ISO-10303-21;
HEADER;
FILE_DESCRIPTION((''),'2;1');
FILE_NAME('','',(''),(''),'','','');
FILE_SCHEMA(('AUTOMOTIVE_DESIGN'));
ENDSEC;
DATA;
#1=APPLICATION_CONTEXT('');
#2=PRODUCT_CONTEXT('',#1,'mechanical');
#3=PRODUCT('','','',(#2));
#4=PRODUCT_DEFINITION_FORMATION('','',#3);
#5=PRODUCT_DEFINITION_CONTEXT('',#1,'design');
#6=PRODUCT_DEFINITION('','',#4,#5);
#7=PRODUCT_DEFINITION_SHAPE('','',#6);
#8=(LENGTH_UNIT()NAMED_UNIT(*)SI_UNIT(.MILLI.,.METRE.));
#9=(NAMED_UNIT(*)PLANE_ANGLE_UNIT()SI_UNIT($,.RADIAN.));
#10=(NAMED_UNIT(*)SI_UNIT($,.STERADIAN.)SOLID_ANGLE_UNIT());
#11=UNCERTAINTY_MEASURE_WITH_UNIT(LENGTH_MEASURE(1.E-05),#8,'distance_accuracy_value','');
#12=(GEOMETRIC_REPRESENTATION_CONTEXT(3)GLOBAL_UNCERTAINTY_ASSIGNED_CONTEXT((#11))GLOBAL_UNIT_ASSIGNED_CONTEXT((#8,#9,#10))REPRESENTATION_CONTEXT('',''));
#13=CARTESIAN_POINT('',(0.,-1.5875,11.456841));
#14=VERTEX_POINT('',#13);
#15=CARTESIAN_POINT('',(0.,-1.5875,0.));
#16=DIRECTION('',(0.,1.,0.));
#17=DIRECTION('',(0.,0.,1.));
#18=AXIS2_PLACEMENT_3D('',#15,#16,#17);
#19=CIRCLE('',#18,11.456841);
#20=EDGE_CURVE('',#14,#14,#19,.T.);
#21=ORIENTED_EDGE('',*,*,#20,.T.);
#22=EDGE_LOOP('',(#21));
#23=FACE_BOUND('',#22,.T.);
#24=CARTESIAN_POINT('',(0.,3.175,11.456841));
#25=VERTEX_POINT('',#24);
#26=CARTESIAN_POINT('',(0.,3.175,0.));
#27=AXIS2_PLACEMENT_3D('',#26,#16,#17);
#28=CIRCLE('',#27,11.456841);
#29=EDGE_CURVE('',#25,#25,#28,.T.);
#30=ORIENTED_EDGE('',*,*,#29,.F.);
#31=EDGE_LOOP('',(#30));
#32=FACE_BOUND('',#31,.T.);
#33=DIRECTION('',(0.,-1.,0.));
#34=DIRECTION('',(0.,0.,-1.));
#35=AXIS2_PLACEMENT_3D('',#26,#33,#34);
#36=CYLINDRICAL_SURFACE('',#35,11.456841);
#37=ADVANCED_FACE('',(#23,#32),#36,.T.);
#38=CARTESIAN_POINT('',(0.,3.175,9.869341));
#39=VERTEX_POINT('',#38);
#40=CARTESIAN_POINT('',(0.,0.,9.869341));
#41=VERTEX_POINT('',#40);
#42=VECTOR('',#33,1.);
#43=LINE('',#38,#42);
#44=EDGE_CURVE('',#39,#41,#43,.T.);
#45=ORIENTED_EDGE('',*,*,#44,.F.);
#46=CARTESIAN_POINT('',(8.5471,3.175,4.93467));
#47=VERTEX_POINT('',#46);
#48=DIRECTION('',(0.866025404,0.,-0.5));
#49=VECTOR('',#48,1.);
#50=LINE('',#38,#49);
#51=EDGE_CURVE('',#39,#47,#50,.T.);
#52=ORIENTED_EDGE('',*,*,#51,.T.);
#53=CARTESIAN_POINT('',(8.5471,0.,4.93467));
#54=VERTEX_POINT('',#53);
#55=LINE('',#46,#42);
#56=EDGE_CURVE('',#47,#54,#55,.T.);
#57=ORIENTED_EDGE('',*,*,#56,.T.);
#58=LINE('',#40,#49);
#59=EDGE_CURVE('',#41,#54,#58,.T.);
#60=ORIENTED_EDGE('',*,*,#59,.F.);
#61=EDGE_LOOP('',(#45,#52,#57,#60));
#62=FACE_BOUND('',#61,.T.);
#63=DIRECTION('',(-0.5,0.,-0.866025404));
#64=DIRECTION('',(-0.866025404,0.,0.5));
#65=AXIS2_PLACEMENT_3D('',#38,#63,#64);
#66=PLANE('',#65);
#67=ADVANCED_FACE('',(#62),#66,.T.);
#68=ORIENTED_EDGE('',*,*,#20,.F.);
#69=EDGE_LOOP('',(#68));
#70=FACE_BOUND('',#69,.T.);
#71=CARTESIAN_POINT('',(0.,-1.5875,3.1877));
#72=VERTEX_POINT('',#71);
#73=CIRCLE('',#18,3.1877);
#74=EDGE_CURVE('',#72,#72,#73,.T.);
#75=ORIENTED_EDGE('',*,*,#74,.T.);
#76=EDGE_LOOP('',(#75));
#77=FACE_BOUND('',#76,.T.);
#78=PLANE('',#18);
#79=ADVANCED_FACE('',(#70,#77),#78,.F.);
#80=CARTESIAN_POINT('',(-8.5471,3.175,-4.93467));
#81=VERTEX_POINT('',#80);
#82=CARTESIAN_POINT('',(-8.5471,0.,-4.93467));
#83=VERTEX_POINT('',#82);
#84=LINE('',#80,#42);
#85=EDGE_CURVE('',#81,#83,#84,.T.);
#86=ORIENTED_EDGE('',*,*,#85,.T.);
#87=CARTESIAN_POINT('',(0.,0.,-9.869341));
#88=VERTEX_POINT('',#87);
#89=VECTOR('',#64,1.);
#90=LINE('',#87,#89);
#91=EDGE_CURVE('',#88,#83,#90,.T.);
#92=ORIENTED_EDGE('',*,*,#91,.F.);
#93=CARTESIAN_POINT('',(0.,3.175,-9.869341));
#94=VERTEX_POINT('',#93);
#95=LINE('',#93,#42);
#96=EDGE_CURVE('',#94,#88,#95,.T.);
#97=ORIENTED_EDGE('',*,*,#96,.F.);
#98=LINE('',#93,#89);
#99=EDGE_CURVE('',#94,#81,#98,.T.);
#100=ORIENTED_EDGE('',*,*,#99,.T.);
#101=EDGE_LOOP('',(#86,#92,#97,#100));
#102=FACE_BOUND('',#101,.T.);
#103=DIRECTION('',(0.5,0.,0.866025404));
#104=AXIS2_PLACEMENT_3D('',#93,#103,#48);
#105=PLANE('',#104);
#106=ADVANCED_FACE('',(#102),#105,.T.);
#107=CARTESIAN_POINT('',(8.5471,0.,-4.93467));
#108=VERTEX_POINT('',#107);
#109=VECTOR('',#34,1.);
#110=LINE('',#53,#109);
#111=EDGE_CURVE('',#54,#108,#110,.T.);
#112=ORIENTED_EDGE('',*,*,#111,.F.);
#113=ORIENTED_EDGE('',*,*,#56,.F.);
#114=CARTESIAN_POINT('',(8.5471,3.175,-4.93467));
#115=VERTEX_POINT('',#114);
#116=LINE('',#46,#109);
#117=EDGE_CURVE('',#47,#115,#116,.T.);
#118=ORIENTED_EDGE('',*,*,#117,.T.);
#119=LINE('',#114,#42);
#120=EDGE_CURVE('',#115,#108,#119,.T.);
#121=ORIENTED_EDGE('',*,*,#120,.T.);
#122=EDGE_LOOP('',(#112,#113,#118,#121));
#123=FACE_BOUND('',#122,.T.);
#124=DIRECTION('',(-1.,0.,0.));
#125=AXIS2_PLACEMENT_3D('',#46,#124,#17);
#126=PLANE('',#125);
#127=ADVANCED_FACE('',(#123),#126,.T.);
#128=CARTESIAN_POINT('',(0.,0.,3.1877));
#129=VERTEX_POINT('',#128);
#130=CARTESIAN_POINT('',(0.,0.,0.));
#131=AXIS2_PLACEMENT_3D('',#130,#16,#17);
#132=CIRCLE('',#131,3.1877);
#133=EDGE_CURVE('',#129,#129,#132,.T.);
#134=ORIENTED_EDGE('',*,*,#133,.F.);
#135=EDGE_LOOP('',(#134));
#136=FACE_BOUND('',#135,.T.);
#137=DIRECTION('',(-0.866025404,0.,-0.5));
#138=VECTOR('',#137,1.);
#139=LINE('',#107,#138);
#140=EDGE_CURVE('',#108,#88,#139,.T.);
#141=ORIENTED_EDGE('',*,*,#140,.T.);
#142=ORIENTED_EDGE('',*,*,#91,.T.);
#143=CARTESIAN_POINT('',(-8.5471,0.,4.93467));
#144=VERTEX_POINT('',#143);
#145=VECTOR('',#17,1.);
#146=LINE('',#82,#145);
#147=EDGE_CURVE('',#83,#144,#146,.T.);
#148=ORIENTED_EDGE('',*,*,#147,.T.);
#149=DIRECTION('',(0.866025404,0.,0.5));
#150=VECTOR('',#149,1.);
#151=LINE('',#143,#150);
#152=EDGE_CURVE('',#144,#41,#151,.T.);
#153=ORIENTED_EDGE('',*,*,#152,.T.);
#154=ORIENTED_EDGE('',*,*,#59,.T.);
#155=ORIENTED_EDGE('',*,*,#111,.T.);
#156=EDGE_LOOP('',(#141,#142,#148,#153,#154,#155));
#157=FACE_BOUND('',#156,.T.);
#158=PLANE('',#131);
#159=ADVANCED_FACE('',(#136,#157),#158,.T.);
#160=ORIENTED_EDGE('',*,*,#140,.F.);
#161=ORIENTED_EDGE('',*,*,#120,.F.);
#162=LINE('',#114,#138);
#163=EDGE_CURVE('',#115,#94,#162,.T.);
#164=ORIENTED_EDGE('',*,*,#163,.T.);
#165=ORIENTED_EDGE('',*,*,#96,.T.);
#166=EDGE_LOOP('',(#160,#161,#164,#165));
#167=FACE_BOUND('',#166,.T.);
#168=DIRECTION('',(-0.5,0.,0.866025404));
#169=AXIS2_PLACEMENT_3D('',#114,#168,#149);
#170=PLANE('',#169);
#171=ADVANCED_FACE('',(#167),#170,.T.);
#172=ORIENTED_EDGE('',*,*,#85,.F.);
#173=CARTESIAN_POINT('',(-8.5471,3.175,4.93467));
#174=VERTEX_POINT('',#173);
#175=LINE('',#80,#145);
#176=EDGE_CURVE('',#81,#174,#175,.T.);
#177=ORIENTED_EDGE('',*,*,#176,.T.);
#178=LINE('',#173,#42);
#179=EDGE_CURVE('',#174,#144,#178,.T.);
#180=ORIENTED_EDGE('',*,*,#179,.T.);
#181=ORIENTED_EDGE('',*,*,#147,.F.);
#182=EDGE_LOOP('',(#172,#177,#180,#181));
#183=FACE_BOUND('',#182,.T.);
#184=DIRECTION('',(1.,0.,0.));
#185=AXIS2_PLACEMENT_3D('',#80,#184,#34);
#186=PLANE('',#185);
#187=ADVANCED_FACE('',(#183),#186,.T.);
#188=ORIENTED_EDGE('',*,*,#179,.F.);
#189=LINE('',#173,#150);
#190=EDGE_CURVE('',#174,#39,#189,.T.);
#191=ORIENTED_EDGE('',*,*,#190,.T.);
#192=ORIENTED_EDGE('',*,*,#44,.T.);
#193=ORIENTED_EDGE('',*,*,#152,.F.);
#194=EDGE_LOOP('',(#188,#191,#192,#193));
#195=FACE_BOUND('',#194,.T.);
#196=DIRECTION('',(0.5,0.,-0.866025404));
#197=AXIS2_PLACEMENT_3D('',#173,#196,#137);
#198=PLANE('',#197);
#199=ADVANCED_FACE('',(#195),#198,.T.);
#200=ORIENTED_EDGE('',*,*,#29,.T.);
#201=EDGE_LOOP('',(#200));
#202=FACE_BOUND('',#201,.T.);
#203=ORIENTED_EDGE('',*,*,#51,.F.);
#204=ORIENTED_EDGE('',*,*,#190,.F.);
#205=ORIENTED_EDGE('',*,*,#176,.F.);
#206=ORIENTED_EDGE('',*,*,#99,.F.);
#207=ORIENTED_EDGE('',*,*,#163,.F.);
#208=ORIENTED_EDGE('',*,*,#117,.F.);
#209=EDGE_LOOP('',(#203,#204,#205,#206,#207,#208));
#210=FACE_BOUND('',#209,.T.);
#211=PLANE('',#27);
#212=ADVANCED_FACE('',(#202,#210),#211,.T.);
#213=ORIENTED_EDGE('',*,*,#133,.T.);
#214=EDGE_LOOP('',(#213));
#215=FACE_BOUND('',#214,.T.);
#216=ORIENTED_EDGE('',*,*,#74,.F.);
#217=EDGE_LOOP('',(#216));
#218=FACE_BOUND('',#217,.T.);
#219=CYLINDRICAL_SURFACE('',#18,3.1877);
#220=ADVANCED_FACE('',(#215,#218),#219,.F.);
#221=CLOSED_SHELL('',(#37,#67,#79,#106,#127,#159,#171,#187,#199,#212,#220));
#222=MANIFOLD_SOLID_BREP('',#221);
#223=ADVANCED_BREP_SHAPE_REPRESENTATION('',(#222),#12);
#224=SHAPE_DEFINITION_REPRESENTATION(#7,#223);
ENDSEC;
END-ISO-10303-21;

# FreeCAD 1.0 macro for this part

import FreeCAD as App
import Part
import Sketcher

V = App.Vector
Q = App.Units.Quantity


def add_polygon(sketch, points):
    """Adds a closed chain of lines whose ends are joined by coincident constraints."""
    first, n = sketch.GeometryCount, len(points)
    for a, b in zip(points, points[1:] + points[:1]):
        sketch.addGeometry(Part.LineSegment(App.Vector(*a, 0), App.Vector(*b, 0)), False)
    for i in range(n):
        sketch.addConstraint(Sketcher.Constraint("Coincident", first + i, 2, first + (i + 1) % n, 1))

doc = App.newDocument("Part")
body = doc.addObject("PartDesign::Body", "Body")

# Sketch on XZ plane
sketch1 = doc.addObject("Sketcher::SketchObject", "Sketch")
body.addObject(sketch1)
sketch1.AttachmentSupport = (doc.XZ_Plane, [""])
sketch1.MapMode = "FlatFace"
sketch1.addGeometry(Part.Circle(V(0, 0, 0), V(0, 0, 1), 11.456841), False)  # 0
add_polygon(sketch1, [(0, -9.869341), (8.5471, -4.93467), (8.5471, 4.93467), (0, 9.869341), (-8.5471, 4.93467), (-8.5471, -4.93467)])  # lines 1-6
sketch1.addConstraint([
    Sketcher.Constraint("Vertical", 2),
    Sketcher.Constraint("Vertical", 5),
    Sketcher.Constraint("Coincident", 0, 3, -1, 1),
    Sketcher.Constraint("Symmetric", 1, 2, 4, 2, -1, 1),
    Sketcher.Constraint("Symmetric", 3, 2, 6, 2, -1, 1),
    Sketcher.Constraint("PointOnObject", 3, 2, -2),
    Sketcher.Constraint("Parallel", 3, 6),
    Sketcher.Constraint("Horizontal", 2, 2, 4, 2),
    Sketcher.Constraint("Angle", 1, Q("30 deg")),
    Sketcher.Constraint("Diameter", 0, Q("22.913682 mm")),
    Sketcher.Constraint("DistanceX", 4, 2, 2, 2, Q("0.673 in")),
    Sketcher.Constraint("DistanceY", 2, 1, 2, 2, Q("9.869341 mm")),
])
pad1 = doc.addObject("PartDesign::Pad", "Pad")
body.addObject(pad1)
pad1.Profile = sketch1
pad1.Length = Q("0.125 in")
pad1.Reversed = True

# Sketch on XZ plane
sketch2 = doc.addObject("Sketcher::SketchObject", "Sketch001")
body.addObject(sketch2)
sketch2.AttachmentSupport = (doc.XZ_Plane, [""])
sketch2.MapMode = "FlatFace"
sketch2.addGeometry([
    Part.Circle(V(0, 0, 0), V(0, 0, 1), 11.456841),
    Part.Circle(V(0, 0, 0), V(0, 0, 1), 3.1877),
], False)
sketch2.addConstraint([
    Sketcher.Constraint("Coincident", 0, 3, -1, 1),
    Sketcher.Constraint("Coincident", 1, 3, -1, 1),
    Sketcher.Constraint("Diameter", 1, Q("0.251 in")),
    Sketcher.Constraint("Diameter", 0, Q("22.913682 mm")),
])
pad2 = doc.addObject("PartDesign::Pad", "Pad001")
body.addObject(pad2)
pad2.Profile = sketch2
pad2.Length = Q("0.0625 in")

doc.recompute()
